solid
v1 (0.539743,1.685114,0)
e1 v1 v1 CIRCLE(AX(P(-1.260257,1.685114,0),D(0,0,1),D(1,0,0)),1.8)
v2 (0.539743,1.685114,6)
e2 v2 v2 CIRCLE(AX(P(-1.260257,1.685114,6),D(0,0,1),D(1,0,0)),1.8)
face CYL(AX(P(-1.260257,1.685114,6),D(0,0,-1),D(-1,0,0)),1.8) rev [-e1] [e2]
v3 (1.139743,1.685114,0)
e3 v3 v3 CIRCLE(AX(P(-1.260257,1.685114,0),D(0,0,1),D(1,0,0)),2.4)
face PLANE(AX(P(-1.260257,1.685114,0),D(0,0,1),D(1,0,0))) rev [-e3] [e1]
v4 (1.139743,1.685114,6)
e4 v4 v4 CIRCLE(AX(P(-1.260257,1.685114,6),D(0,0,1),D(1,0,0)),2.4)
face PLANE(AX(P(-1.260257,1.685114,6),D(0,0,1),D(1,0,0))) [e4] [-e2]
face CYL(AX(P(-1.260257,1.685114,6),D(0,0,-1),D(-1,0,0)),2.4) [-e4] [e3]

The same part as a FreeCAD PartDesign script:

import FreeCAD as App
import Part
import Sketcher

doc = App.newDocument("Part")
body = doc.addObject("PartDesign::Body", "Body")

sketch1 = body.newObject("Sketcher::SketchObject", "Sketch")
sketch1.AttachmentSupport = (doc.getObject("XY_Plane"), [""])
sketch1.MapMode = "FlatFace"
sketch1.addGeometry(Part.Circle(App.Vector(-1.260257, 1.685114, 0), App.Vector(0, 0, 1), 2.4), False)
sketch1.addConstraint([
    Sketcher.Constraint("Diameter", 0, 4.8),
    Sketcher.Constraint("DistanceX", 0, 3, -1, 1, 1.260257),
    Sketcher.Constraint("DistanceY", -1, 1, 0, 3, 1.685114),
])
pad1 = body.newObject("PartDesign::Pad", "Pad")
pad1.Profile = sketch1
pad1.Length = 6

sketch2 = body.newObject("Sketcher::SketchObject", "Sketch001")
sketch2.AttachmentSupport = (doc.getObject("XY_Plane"), [""])
sketch2.MapMode = "FlatFace"
sketch2.addGeometry(Part.Circle(App.Vector(-1.260257, 1.685114, 0), App.Vector(0, 0, 1), 1.8), False)
sketch2.addConstraint([
    Sketcher.Constraint("Diameter", 0, 3.6),
    Sketcher.Constraint("DistanceX", 0, 3, -1, 1, 1.260257),
    Sketcher.Constraint("DistanceY", -1, 1, 0, 3, 1.685114),
])
pocket1 = body.newObject("PartDesign::Pocket", "Pocket")
pocket1.Profile = sketch2
pocket1.Length = 6
pocket1.Reversed = True

doc.recompute()
